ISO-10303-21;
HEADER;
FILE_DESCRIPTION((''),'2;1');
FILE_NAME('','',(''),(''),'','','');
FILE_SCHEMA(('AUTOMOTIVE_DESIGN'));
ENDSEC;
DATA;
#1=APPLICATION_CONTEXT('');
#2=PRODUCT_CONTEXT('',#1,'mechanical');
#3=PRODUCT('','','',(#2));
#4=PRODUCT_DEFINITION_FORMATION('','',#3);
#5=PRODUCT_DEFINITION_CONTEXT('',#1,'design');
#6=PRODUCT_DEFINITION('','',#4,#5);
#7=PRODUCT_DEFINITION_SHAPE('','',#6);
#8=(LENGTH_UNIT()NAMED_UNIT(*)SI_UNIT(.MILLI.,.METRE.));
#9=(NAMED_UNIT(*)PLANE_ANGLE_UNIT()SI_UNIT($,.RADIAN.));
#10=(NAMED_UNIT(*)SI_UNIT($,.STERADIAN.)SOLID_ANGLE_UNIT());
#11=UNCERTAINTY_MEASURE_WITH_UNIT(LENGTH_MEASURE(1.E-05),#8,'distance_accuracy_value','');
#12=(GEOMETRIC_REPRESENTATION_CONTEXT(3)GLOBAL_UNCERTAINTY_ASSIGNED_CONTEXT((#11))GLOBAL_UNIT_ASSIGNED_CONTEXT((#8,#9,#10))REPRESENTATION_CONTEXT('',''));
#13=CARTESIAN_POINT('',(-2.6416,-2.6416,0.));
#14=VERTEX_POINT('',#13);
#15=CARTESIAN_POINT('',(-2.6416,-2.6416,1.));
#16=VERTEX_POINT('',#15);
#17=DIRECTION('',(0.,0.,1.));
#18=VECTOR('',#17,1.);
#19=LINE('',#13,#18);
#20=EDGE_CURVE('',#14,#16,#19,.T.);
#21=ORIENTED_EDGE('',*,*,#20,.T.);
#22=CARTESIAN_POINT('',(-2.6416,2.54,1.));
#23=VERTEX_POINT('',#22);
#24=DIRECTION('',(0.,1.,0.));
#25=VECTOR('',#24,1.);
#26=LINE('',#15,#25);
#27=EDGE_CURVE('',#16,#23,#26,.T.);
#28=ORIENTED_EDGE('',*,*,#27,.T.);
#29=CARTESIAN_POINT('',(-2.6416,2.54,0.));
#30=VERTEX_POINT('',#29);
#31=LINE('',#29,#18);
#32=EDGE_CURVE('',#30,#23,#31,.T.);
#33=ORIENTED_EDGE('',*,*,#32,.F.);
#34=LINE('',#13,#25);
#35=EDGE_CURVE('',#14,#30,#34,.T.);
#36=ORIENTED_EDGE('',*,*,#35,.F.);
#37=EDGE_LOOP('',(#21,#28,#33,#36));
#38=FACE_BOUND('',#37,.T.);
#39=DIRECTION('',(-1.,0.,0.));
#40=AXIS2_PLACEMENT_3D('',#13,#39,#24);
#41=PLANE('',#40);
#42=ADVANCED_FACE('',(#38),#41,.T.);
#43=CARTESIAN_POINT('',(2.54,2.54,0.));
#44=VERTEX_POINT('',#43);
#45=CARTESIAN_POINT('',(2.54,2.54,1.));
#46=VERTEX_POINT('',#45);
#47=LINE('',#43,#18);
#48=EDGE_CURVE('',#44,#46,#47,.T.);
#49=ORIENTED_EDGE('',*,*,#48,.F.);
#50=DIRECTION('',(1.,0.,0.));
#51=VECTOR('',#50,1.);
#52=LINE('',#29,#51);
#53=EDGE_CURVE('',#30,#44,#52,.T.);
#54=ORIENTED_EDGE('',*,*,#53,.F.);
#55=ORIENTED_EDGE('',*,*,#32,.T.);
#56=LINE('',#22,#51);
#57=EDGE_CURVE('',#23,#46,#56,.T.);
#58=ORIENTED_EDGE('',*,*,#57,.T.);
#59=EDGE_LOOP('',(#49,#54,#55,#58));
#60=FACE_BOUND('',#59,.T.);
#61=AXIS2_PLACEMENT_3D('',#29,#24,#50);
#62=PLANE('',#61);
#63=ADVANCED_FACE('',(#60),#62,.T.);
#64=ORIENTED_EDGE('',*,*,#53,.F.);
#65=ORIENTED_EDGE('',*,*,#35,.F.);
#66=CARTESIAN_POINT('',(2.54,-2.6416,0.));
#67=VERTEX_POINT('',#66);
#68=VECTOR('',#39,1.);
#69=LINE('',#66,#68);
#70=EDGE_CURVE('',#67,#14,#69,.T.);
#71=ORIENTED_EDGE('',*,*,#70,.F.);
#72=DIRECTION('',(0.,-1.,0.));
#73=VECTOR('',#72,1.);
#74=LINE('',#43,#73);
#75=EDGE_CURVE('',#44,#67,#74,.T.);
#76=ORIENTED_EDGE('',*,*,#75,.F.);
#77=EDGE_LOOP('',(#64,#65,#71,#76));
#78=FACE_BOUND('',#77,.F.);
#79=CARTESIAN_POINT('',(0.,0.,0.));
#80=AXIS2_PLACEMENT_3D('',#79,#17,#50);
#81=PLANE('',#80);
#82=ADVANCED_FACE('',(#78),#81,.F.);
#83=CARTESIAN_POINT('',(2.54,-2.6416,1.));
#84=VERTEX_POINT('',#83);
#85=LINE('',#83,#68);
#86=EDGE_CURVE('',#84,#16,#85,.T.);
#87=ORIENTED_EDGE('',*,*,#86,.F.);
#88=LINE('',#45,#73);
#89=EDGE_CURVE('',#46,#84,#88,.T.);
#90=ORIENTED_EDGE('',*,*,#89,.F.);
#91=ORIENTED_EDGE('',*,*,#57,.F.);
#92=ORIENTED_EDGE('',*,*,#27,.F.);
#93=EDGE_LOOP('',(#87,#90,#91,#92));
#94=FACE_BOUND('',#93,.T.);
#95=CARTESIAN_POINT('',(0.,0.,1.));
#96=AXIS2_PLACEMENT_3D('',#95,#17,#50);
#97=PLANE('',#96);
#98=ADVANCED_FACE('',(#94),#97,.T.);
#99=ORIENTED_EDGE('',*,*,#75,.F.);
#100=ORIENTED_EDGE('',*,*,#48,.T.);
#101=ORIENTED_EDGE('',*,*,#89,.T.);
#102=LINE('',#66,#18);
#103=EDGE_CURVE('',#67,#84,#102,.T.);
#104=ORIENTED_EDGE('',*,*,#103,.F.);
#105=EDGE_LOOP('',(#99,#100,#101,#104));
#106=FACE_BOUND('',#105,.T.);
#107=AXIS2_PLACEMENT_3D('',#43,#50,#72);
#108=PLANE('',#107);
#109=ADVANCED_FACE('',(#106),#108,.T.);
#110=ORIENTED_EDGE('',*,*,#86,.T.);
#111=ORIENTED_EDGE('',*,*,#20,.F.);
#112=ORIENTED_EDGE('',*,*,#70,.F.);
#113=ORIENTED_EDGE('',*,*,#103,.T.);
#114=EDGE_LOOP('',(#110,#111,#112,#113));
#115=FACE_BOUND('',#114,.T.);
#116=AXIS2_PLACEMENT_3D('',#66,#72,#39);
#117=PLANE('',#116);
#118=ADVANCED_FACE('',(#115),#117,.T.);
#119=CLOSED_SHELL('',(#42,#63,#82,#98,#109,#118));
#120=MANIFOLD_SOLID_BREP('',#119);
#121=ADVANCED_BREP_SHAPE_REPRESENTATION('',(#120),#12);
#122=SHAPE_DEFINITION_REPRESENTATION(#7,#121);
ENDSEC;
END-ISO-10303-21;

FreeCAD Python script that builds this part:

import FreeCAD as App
import Part
import Sketcher

V = App.Vector
Q = App.Units.Quantity

doc = App.newDocument("Part")
params = doc.addObject("Spreadsheet::Sheet", "Params")
for row, (alias, value) in enumerate([
    ("pad1_length", "1 mm"),
], start=1):
    params.set(f"A{row}", alias)
    params.set(f"B{row}", "=" + value)
    params.setAlias(f"B{row}", alias)

body = doc.addObject("PartDesign::Body", "Body")

# Sketch on XY plane
sketch1 = body.newObject("Sketcher::SketchObject", "Sketch")
sketch1.AttachmentSupport = (doc.getObject("XY_Plane"), [""])
sketch1.MapMode = "FlatFace"
sketch1.addGeometry([
    Part.LineSegment(V(3, 3, 0), V(-3, 3, 0)),
    Part.LineSegment(V(-3, 3, 0), V(-3, -3, 0)),
    Part.LineSegment(V(-3, -3, 0), V(3, -3, 0)),
    Part.LineSegment(V(3, -3, 0), V(3, 3, 0)),
], False)
sketch1.addConstraint([
    Sketcher.Constraint("Coincident", 0, 2, 1, 1),
    Sketcher.Constraint("Coincident", 1, 2, 2, 1),
    Sketcher.Constraint("Coincident", 2, 2, 3, 1),
    Sketcher.Constraint("Coincident", 3, 2, 0, 1),
    Sketcher.Constraint("Horizontal", 0),
    Sketcher.Constraint("Vertical", 1),
    Sketcher.Constraint("Horizontal", 2),
    Sketcher.Constraint("Vertical", 3),
    Sketcher.Constraint("Equal", 2, 1),
    Sketcher.Constraint("DistanceY", -1, 1, 0, 2, Q("2.54 mm")),
    Sketcher.Constraint("DistanceX", -1, 1, 2, 2, Q("2.54 mm")),
    Sketcher.Constraint("DistanceX", 0, 2, 0, 1, Q("5.1816 mm")),
])
pad1 = body.newObject("PartDesign::Pad", "Pad")
pad1.Profile = sketch1
pad1.setExpression("Length", "Params.pad1_length")

doc.recompute()
